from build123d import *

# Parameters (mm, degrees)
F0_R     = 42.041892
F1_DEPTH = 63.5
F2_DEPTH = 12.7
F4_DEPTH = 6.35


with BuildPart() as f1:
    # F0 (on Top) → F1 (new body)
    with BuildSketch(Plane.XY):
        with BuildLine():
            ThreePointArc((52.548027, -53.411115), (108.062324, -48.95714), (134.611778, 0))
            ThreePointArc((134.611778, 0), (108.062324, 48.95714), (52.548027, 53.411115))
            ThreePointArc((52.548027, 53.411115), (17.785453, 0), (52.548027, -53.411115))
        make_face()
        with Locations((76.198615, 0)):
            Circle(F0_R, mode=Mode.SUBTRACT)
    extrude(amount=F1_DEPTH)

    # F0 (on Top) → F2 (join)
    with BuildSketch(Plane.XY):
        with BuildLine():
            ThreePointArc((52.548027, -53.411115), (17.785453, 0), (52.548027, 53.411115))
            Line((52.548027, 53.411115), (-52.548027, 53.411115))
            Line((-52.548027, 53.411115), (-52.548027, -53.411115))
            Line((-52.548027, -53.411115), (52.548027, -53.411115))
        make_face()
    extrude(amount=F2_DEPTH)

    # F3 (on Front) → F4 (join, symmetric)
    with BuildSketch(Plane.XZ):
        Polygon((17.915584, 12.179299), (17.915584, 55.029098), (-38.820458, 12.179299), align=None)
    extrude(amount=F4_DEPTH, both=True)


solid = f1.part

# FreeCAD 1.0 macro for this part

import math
import FreeCAD as App
import Part
import Sketcher

V = App.Vector
Q = App.Units.Quantity

doc = App.newDocument("Part")
body = doc.addObject("PartDesign::Body", "Body")

# Sketch on XY plane
sketch1 = body.newObject("Sketcher::SketchObject", "Sketch")
sketch1.AttachmentSupport = (doc.getObject("XY_Plane"), [""])
sketch1.MapMode = "FlatFace"
sketch1.addGeometry([
    Part.ArcOfCircle(Part.Circle(V(76, 0, 0), V(0, 0, 1), 58), math.radians(-114), math.radians(0)),
    Part.ArcOfCircle(Part.Circle(V(76, 0, 0), V(0, 0, 1), 58), math.radians(0), math.radians(114)),
    Part.ArcOfCircle(Part.Circle(V(76, 0, 0), V(0, 0, 1), 58), math.radians(114), math.radians(246)),
    Part.Circle(V(76, 0, 0), V(0, 0, 1), 42),
], False)
sketch1.addConstraint([
    Sketcher.Constraint("Tangent", 0, 2, 1, 1),
    Sketcher.Constraint("Tangent", 1, 2, 2, 1),
    Sketcher.Constraint("Tangent", 2, 2, 0, 1),
    Sketcher.Constraint("Coincident", 3, 3, 0, 3),
    Sketcher.Constraint("Symmetric", 1, 2, 2, 2, -1),
    Sketcher.Constraint("PointOnObject", 0, 2, -1),
    Sketcher.Constraint("Diameter", 3, 84.083784),
    Sketcher.Constraint("DistanceY", -1, 1, 1, 2, Q("2.1027998 in")),
    Sketcher.Constraint("Radius", 0, 58.413163),
    Sketcher.Constraint("DistanceX", -1, 1, 0, 3, 76.198615),
])
pad1 = body.newObject("PartDesign::Pad", "Pad")
pad1.Profile = sketch1
pad1.Length = Q("2.5 in")

# Sketch on XY plane
sketch2 = body.newObject("Sketcher::SketchObject", "Sketch001")
sketch2.AttachmentSupport = (doc.getObject("XY_Plane"), [""])
sketch2.MapMode = "FlatFace"
sketch2.addGeometry([
    Part.ArcOfCircle(Part.Circle(V(76, 0, 0), V(0, 0, 1), 58), math.radians(114), math.radians(246)),
    Part.LineSegment(V(53, 53, 0), V(-53, 53, 0)),
    Part.LineSegment(V(-53, 53, 0), V(-53, -53, 0)),
    Part.LineSegment(V(-53, -53, 0), V(53, -53, 0)),
], False)
sketch2.addConstraint([
    Sketcher.Constraint("Coincident", 0, 1, 1, 1),
    Sketcher.Constraint("Coincident", 1, 2, 2, 1),
    Sketcher.Constraint("Coincident", 2, 2, 3, 1),
    Sketcher.Constraint("Coincident", 3, 2, 0, 2),
    Sketcher.Constraint("Horizontal", 1),
    Sketcher.Constraint("Vertical", 2),
    Sketcher.Constraint("Horizontal", 3),
    Sketcher.Constraint("Symmetric", 0, 1, 2, 2, -1, 1),
    Sketcher.Constraint("PointOnObject", 0, 3, -1),
    Sketcher.Constraint("DistanceY", -1, 1, 0, 1, Q("2.1027998 in")),
    Sketcher.Constraint("Radius", 0, 58.413162),
    Sketcher.Constraint("DistanceX", 1, 2, 1, 1, 105.096054),
])
pad2 = body.newObject("PartDesign::Pad", "Pad001")
pad2.Profile = sketch2
pad2.Length = Q("0.5 in")

# Sketch on XZ plane
sketch3 = body.newObject("Sketcher::SketchObject", "Sketch002")
sketch3.AttachmentSupport = (doc.getObject("XZ_Plane"), [""])
sketch3.MapMode = "FlatFace"
sketch3.addGeometry([
    Part.LineSegment(V(18, 12, 0), V(18, 55, 0)),
    Part.LineSegment(V(18, 55, 0), V(-39, 12, 0)),
    Part.LineSegment(V(-39, 12, 0), V(18, 12, 0)),
], False)
sketch3.addConstraint([
    Sketcher.Constraint("Coincident", 0, 2, 1, 1),
    Sketcher.Constraint("Coincident", 1, 2, 2, 1),
    Sketcher.Constraint("Coincident", 2, 2, 0, 1),
    Sketcher.Constraint("Vertical", 0),
    Sketcher.Constraint("Horizontal", 2),
    Sketcher.Constraint("DistanceY", 0, 1, 0, 2, Q("1.687 in")),
    Sketcher.Constraint("DistanceY", -1, 1, 0, 2, Q("2.1664999 in")),
    Sketcher.Constraint("DistanceX", 2, 1, 2, 2, 56.736042),
    Sketcher.Constraint("DistanceX", 1, 2, -1, 1, 38.820458),
])
pad3 = body.newObject("PartDesign::Pad", "Pad002")
pad3.Profile = sketch3
pad3.Length = Q("0.5 in")
pad3.Midplane = True

doc.recompute()
